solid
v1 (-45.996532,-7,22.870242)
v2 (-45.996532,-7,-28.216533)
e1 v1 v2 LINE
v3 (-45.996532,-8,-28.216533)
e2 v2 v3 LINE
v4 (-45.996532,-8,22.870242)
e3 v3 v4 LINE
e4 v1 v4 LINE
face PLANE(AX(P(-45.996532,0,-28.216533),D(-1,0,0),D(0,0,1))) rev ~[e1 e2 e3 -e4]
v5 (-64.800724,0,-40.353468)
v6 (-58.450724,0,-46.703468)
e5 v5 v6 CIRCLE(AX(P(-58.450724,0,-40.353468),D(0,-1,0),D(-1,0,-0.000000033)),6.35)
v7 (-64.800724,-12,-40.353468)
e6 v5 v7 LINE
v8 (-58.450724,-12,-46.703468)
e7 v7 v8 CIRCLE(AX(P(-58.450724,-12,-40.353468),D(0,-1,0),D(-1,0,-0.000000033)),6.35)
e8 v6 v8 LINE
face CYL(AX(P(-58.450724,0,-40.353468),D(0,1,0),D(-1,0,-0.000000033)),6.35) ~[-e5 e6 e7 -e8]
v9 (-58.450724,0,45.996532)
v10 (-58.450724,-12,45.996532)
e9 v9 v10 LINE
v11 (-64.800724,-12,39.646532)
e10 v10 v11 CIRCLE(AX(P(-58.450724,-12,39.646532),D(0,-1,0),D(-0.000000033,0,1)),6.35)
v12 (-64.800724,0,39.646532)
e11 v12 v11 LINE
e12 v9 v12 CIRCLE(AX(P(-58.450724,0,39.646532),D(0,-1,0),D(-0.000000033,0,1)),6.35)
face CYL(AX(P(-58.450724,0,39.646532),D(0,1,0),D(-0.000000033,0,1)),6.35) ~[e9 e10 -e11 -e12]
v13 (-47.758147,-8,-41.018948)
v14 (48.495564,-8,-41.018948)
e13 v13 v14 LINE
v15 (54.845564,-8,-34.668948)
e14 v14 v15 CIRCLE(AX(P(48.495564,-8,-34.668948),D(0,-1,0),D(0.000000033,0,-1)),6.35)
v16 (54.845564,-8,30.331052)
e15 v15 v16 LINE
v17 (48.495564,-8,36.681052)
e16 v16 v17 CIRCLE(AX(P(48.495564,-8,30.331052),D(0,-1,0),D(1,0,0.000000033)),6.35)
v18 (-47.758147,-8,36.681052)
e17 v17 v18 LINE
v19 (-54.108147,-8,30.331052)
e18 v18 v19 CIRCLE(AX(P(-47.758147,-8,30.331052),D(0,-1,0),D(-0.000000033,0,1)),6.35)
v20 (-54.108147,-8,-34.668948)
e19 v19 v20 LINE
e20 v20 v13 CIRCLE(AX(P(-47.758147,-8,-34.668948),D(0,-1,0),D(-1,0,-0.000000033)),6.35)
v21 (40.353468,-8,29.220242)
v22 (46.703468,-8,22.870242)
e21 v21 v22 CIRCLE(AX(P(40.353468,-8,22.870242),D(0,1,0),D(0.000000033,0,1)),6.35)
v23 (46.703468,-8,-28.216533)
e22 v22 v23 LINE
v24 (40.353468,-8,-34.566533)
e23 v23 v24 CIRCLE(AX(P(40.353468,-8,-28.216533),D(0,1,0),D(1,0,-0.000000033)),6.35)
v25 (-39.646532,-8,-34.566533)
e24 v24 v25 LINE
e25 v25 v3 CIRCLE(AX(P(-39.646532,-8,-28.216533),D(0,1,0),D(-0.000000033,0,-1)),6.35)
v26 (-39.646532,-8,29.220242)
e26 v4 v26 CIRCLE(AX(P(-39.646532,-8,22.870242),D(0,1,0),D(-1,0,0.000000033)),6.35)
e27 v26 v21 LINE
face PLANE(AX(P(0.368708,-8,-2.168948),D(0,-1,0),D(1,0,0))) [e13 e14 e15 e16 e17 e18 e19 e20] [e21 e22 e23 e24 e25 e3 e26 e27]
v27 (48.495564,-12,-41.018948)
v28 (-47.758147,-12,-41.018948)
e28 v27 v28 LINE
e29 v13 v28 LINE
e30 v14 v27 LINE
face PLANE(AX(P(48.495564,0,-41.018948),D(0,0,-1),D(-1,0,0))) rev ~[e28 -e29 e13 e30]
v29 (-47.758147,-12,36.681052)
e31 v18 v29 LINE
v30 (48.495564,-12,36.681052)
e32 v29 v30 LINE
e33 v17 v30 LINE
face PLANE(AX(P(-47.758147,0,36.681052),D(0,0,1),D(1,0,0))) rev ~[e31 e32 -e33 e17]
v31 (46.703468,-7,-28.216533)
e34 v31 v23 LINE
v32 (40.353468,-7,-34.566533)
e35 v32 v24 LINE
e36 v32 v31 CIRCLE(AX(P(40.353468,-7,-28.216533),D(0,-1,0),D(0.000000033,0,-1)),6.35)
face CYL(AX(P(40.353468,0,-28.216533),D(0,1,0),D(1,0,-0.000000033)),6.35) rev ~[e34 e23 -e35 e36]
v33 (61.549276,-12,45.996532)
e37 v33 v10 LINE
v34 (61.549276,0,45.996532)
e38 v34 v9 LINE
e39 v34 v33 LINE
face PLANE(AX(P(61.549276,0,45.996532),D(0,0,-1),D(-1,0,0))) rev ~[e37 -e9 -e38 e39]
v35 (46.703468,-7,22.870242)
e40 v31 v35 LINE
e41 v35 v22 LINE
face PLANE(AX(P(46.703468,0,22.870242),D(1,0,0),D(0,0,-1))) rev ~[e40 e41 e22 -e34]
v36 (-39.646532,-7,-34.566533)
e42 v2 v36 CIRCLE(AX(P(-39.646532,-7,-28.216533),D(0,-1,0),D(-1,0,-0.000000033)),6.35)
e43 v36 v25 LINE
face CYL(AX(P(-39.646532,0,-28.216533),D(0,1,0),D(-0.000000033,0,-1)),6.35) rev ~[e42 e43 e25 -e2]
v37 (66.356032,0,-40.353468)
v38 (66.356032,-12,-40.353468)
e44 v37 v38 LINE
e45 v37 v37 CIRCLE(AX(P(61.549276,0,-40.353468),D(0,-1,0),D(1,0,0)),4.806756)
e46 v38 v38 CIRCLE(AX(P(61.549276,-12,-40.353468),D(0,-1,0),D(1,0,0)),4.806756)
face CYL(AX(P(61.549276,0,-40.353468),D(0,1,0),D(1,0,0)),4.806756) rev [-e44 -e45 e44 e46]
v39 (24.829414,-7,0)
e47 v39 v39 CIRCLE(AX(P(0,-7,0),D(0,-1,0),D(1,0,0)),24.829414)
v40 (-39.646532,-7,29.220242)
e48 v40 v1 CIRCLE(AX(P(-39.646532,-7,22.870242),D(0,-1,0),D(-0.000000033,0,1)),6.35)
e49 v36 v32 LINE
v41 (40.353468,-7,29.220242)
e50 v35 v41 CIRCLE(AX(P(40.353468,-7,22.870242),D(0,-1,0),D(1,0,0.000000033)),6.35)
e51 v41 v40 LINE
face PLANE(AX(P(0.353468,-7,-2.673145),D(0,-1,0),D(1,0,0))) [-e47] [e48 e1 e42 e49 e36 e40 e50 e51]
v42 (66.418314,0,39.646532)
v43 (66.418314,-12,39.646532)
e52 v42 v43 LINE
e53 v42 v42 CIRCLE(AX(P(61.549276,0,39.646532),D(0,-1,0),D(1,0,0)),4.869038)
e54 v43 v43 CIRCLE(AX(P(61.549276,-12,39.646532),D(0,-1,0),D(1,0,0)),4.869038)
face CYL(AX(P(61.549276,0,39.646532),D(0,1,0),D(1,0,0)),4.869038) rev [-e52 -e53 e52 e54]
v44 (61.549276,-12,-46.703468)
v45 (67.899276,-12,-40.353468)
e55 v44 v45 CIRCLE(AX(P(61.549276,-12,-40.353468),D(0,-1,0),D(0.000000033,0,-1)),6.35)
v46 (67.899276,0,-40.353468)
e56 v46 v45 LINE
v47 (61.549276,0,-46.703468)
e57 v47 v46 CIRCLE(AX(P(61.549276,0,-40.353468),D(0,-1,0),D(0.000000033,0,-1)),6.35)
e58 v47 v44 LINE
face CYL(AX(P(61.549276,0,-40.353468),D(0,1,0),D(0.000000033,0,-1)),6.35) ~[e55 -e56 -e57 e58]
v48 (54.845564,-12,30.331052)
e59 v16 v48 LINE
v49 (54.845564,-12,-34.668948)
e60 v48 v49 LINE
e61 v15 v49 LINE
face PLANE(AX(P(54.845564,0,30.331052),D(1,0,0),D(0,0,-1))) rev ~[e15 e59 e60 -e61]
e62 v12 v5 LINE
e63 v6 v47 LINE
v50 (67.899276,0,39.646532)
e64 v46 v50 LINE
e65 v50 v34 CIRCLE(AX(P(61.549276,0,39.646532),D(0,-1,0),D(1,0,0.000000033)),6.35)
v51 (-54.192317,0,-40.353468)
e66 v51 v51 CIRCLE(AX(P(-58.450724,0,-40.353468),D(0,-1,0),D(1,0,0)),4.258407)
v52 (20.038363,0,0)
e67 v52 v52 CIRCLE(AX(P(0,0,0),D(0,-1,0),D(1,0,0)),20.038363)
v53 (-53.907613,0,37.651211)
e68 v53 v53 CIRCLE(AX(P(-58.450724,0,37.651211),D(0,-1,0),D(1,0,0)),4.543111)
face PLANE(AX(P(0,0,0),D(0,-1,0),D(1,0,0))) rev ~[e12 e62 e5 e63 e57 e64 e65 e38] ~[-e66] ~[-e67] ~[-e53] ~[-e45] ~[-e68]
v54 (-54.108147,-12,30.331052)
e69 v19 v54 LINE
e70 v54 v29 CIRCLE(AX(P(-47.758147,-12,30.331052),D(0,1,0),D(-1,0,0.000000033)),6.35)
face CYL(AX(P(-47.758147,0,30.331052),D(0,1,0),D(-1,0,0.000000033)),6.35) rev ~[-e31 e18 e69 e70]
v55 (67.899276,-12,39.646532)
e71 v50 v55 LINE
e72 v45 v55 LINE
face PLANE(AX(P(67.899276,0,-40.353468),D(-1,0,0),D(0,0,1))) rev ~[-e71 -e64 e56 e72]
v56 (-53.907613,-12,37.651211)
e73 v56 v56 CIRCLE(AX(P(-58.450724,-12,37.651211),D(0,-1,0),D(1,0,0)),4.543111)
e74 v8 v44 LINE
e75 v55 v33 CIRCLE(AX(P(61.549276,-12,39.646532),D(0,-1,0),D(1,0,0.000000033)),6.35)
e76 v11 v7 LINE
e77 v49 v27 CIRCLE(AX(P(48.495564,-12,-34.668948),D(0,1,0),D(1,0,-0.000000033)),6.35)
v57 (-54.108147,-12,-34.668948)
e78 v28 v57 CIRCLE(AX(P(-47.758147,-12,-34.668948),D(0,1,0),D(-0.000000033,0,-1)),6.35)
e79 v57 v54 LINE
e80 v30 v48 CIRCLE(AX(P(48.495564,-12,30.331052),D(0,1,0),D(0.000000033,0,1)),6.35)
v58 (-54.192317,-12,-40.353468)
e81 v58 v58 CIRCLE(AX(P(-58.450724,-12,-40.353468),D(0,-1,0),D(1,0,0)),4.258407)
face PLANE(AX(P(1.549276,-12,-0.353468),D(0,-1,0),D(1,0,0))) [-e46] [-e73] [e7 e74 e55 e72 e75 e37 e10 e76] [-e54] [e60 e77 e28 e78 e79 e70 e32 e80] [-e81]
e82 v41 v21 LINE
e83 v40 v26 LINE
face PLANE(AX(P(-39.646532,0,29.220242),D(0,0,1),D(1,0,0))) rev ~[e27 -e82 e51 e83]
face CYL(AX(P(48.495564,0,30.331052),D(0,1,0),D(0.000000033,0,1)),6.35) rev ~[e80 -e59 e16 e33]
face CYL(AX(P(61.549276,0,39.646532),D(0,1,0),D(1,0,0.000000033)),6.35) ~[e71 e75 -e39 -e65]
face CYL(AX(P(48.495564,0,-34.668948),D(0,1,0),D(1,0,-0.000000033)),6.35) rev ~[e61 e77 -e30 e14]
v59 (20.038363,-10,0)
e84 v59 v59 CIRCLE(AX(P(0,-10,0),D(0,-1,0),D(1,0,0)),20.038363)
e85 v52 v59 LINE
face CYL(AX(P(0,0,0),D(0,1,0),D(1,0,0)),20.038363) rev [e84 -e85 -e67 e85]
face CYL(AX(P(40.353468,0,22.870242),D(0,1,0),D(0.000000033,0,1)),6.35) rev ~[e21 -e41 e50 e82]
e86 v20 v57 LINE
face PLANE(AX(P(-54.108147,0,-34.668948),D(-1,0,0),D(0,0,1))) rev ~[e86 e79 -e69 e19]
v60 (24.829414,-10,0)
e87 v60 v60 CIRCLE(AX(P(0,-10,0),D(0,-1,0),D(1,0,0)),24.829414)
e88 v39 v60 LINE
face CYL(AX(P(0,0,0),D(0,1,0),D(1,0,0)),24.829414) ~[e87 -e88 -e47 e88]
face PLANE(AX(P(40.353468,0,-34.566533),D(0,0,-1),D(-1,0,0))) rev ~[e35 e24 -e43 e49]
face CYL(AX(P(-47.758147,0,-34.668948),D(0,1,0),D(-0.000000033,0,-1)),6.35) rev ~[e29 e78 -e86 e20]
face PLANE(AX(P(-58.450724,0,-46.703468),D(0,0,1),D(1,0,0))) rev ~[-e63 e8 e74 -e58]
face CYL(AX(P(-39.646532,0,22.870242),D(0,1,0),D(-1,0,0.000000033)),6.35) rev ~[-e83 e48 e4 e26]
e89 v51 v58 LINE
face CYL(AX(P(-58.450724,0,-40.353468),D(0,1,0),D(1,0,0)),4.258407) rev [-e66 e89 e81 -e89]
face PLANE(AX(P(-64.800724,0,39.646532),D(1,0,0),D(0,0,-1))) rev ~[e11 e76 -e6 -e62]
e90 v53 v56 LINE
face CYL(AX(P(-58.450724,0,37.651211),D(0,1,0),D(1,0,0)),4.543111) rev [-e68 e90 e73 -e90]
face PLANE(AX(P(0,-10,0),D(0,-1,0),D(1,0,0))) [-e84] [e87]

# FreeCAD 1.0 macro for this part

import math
import FreeCAD as App
import Part
import Sketcher

V = App.Vector

doc = App.newDocument("Part")
body = doc.addObject("PartDesign::Body", "Body")

# Sketch on XZ plane
sketch1 = body.newObject("Sketcher::SketchObject", "Sketch")
sketch1.AttachmentSupport = (doc.getObject("XZ_Plane"), [""])
sketch1.MapMode = "FlatFace"
sketch1.addGeometry([
    Part.LineSegment(V(61.5, 46, 0), V(-58.5, 46, 0)),  # 0
    Part.ArcOfCircle(Part.Circle(V(-58.5, 39.6, 0), V(0, 0, 1), 6.4), math.radians(90), math.radians(180)),  # 1
    Part.LineSegment(V(-64.8, 39.6, 0), V(-64.8, -40.4, 0)),  # 2
    Part.ArcOfCircle(Part.Circle(V(-58.5, -40.4, 0), V(0, 0, 1), 6.4), math.radians(-180), math.radians(-90)),  # 3
    Part.LineSegment(V(-58.5, -46.7, 0), V(61.5, -46.7, 0)),  # 4
    Part.ArcOfCircle(Part.Circle(V(61.5, -40.4, 0), V(0, 0, 1), 6.4), math.radians(-90), math.radians(0)),  # 5
    Part.LineSegment(V(67.9, -40.4, 0), V(67.9, 39.6, 0)),  # 6
    Part.ArcOfCircle(Part.Circle(V(61.5, 39.6, 0), V(0, 0, 1), 6.4), math.radians(0), math.radians(90)),  # 7
    Part.Circle(V(-58.5, -40.4, 0), V(0, 0, 1), 4.3),  # 8
    Part.LineSegment(V(-54.1, -34.7, 0), V(-54.1, 30.3, 0)),  # 9
    Part.ArcOfCircle(Part.Circle(V(-47.8, 30.3, 0), V(0, 0, 1), 6.4), math.radians(90), math.radians(180)),  # 10
    Part.LineSegment(V(-47.8, 36.7, 0), V(48.5, 36.7, 0)),  # 11
    Part.ArcOfCircle(Part.Circle(V(48.5, 30.3, 0), V(0, 0, 1), 6.4), math.radians(0), math.radians(90)),  # 12
    Part.LineSegment(V(54.8, 30.3, 0), V(54.8, -34.7, 0)),  # 13
    Part.ArcOfCircle(Part.Circle(V(48.5, -34.7, 0), V(0, 0, 1), 6.4), math.radians(-90), math.radians(0)),  # 14
    Part.LineSegment(V(48.5, -41, 0), V(-47.8, -41, 0)),  # 15
    Part.ArcOfCircle(Part.Circle(V(-47.8, -34.7, 0), V(0, 0, 1), 6.4), math.radians(-180), math.radians(-90)),  # 16
    Part.Circle(V(61.5, -40.4, 0), V(0, 0, 1), 4.8),  # 17
    Part.Circle(V(-58.5, 37.7, 0), V(0, 0, 1), 4.5),  # 18
    Part.Circle(V(61.5, 39.6, 0), V(0, 0, 1), 4.9),  # 19
], False)
sketch1.addConstraint([
    Sketcher.Constraint("Tangent", 0, 2, 1, 1),
    Sketcher.Constraint("Tangent", 1, 2, 2, 1),
    Sketcher.Constraint("Tangent", 2, 2, 3, 1),
    Sketcher.Constraint("Tangent", 3, 2, 4, 1),
    Sketcher.Constraint("Tangent", 4, 2, 5, 1),
    Sketcher.Constraint("Tangent", 5, 2, 6, 1),
    Sketcher.Constraint("Tangent", 6, 2, 7, 1),
    Sketcher.Constraint("Tangent", 7, 2, 0, 1),
    Sketcher.Constraint("Tangent", 9, 2, 10, 2),
    Sketcher.Constraint("Tangent", 10, 1, 11, 1),
    Sketcher.Constraint("Tangent", 11, 2, 12, 2),
    Sketcher.Constraint("Tangent", 12, 1, 13, 1),
    Sketcher.Constraint("Tangent", 13, 2, 14, 2),
    Sketcher.Constraint("Tangent", 14, 1, 15, 1),
    Sketcher.Constraint("Tangent", 15, 2, 16, 2),
    Sketcher.Constraint("Tangent", 16, 1, 9, 1),
    Sketcher.Constraint("Horizontal", 0),
    Sketcher.Constraint("Vertical", 2),
    Sketcher.Constraint("Horizontal", 4),
    Sketcher.Constraint("Vertical", 6),
    Sketcher.Constraint("Vertical", 9),
    Sketcher.Constraint("Horizontal", 11),
    Sketcher.Constraint("Vertical", 13),
    Sketcher.Constraint("Horizontal", 15),
    Sketcher.Constraint("Coincident", 8, 3, 3, 3),
    Sketcher.Constraint("Coincident", 17, 3, 5, 3),
    Sketcher.Constraint("Coincident", 19, 3, 7, 3),
    Sketcher.Constraint("Equal", 1, 3),
    Sketcher.Constraint("Equal", 3, 5),
    Sketcher.Constraint("Equal", 5, 7),
    Sketcher.Constraint("Equal", 7, 10),
    Sketcher.Constraint("Equal", 10, 12),
    Sketcher.Constraint("Equal", 12, 14),
    Sketcher.Constraint("Equal", 14, 16),
    Sketcher.Constraint("Vertical", 8, 3, 18, 3),
    Sketcher.Constraint("DistanceX", 0, 2, 0, 1, 120.0),
    Sketcher.Constraint("DistanceY", 2, 2, 2, 1, 80.0),
    Sketcher.Constraint("DistanceY", 9, 1, 9, 2, 65.0),
    Sketcher.Constraint("Radius", 1, 6.35),
    Sketcher.Constraint("Diameter", 18, 9.086222),
    Sketcher.Constraint("Diameter", 8, 8.516814),
    Sketcher.Constraint("Diameter", 17, 9.613512),
    Sketcher.Constraint("Diameter", 19, 9.738076),
    Sketcher.Constraint("DistanceX", 11, 1, 11, 2, 96.253711),
    Sketcher.Constraint("DistanceY", -1, 1, 1, 3, 39.646532),
    Sketcher.Constraint("DistanceY", -1, 1, 10, 3, 30.331052),
    Sketcher.Constraint("DistanceY", -1, 1, 18, 3, 37.651211),
    Sketcher.Constraint("DistanceX", 12, 3, 7, 3, 13.053712),
    Sketcher.Constraint("DistanceX", 1, 3, -1, 1, 58.450724),
])
pad1 = body.newObject("PartDesign::Pad", "Pad")
pad1.Profile = sketch1
pad1.Length = 12

# Sketch on XZ plane
sketch2 = body.newObject("Sketcher::SketchObject", "Sketch001")
sketch2.AttachmentSupport = (doc.getObject("XZ_Plane"), [""])
sketch2.MapMode = "FlatFace"
sketch2.addGeometry([
    Part.LineSegment(V(48, 37, 0), V(-48, 37, 0)),  # 0
    Part.ArcOfCircle(Part.Circle(V(-48, 30, 0), V(0, 0, 1), 6), math.radians(90), math.radians(180)),  # 1
    Part.LineSegment(V(-54, 30, 0), V(-54, -35, 0)),  # 2
    Part.ArcOfCircle(Part.Circle(V(-48, -35, 0), V(0, 0, 1), 6), math.radians(-180), math.radians(-90)),  # 3
    Part.LineSegment(V(-48, -41, 0), V(48, -41, 0)),  # 4
    Part.ArcOfCircle(Part.Circle(V(48, -35, 0), V(0, 0, 1), 6), math.radians(-90), math.radians(0)),  # 5
    Part.LineSegment(V(55, -35, 0), V(55, 30, 0)),  # 6
    Part.ArcOfCircle(Part.Circle(V(48, 30, 0), V(0, 0, 1), 6), math.radians(0), math.radians(90)),  # 7
    Part.LineSegment(V(-46, -28, 0), V(-46, 23, 0)),  # 8
    Part.ArcOfCircle(Part.Circle(V(-40, 23, 0), V(0, 0, 1), 6), math.radians(90), math.radians(180)),  # 9
    Part.LineSegment(V(-40, 29, 0), V(40, 29, 0)),  # 10
    Part.ArcOfCircle(Part.Circle(V(40, 23, 0), V(0, 0, 1), 6), math.radians(0), math.radians(90)),  # 11
    Part.LineSegment(V(47, 23, 0), V(47, -28, 0)),  # 12
    Part.ArcOfCircle(Part.Circle(V(40, -28, 0), V(0, 0, 1), 6), math.radians(-90), math.radians(0)),  # 13
    Part.LineSegment(V(40, -35, 0), V(-40, -35, 0)),  # 14
    Part.ArcOfCircle(Part.Circle(V(-40, -28, 0), V(0, 0, 1), 6), math.radians(-180), math.radians(-90)),  # 15
], False)
sketch2.addConstraint([
    Sketcher.Constraint("Tangent", 0, 2, 1, 1),
    Sketcher.Constraint("Tangent", 1, 2, 2, 1),
    Sketcher.Constraint("Tangent", 2, 2, 3, 1),
    Sketcher.Constraint("Tangent", 3, 2, 4, 1),
    Sketcher.Constraint("Tangent", 4, 2, 5, 1),
    Sketcher.Constraint("Tangent", 5, 2, 6, 1),
    Sketcher.Constraint("Tangent", 6, 2, 7, 1),
    Sketcher.Constraint("Tangent", 7, 2, 0, 1),
    Sketcher.Constraint("Tangent", 8, 2, 9, 2),
    Sketcher.Constraint("Tangent", 9, 1, 10, 1),
    Sketcher.Constraint("Tangent", 10, 2, 11, 2),
    Sketcher.Constraint("Tangent", 11, 1, 12, 1),
    Sketcher.Constraint("Tangent", 12, 2, 13, 2),
    Sketcher.Constraint("Tangent", 13, 1, 14, 1),
    Sketcher.Constraint("Tangent", 14, 2, 15, 2),
    Sketcher.Constraint("Tangent", 15, 1, 8, 1),
    Sketcher.Constraint("Horizontal", 0),
    Sketcher.Constraint("Vertical", 2),
    Sketcher.Constraint("Horizontal", 4),
    Sketcher.Constraint("Vertical", 6),
    Sketcher.Constraint("Vertical", 8),
    Sketcher.Constraint("Horizontal", 10),
    Sketcher.Constraint("Vertical", 12),
    Sketcher.Constraint("Horizontal", 14),
    Sketcher.Constraint("Equal", 1, 3),
    Sketcher.Constraint("Equal", 3, 5),
    Sketcher.Constraint("Equal", 5, 7),
    Sketcher.Constraint("Equal", 7, 9),
    Sketcher.Constraint("Equal", 9, 11),
    Sketcher.Constraint("Equal", 11, 13),
    Sketcher.Constraint("Equal", 13, 15),
    Sketcher.Constraint("DistanceX", 10, 1, 10, 2, 80.0),
    Sketcher.Constraint("DistanceY", 2, 2, 2, 1, 65.0),
    Sketcher.Constraint("Radius", 1, 6.35),
    Sketcher.Constraint("DistanceX", 0, 2, 0, 1, 96.253711),
    Sketcher.Constraint("DistanceY", 8, 1, 8, 2, 51.086775),
    Sketcher.Constraint("DistanceY", -1, 1, 1, 3, 30.331052),
    Sketcher.Constraint("DistanceX", 9, 3, -1, 1, 39.646532),
    Sketcher.Constraint("DistanceY", -1, 1, 9, 3, 22.870242),
    Sketcher.Constraint("DistanceX", 1, 3, -1, 1, 47.758147),
])
pad2 = body.newObject("PartDesign::Pad", "Pad001")
pad2.Profile = sketch2
pad2.Length = 8

# Sketch on XZ plane
sketch3 = body.newObject("Sketcher::SketchObject", "Sketch002")
sketch3.AttachmentSupport = (doc.getObject("XZ_Plane"), [""])
sketch3.MapMode = "FlatFace"
sketch3.addGeometry([
    Part.LineSegment(V(40, 29, 0), V(-40, 29, 0)),  # 0
    Part.ArcOfCircle(Part.Circle(V(-40, 23, 0), V(0, 0, 1), 6), math.radians(90), math.radians(180)),  # 1
    Part.LineSegment(V(-46, 23, 0), V(-46, -28, 0)),  # 2
    Part.ArcOfCircle(Part.Circle(V(-40, -28, 0), V(0, 0, 1), 6), math.radians(-180), math.radians(-90)),  # 3
    Part.LineSegment(V(-40, -35, 0), V(40, -35, 0)),  # 4
    Part.ArcOfCircle(Part.Circle(V(40, -28, 0), V(0, 0, 1), 6), math.radians(-90), math.radians(0)),  # 5
    Part.LineSegment(V(47, -28, 0), V(47, 23, 0)),  # 6
    Part.ArcOfCircle(Part.Circle(V(40, 23, 0), V(0, 0, 1), 6), math.radians(0), math.radians(90)),  # 7
    Part.Circle(V(0, 0, 0), V(0, 0, 1), 25),  # 8
], False)
sketch3.addConstraint([
    Sketcher.Constraint("Tangent", 0, 2, 1, 1),
    Sketcher.Constraint("Tangent", 1, 2, 2, 1),
    Sketcher.Constraint("Tangent", 2, 2, 3, 1),
    Sketcher.Constraint("Tangent", 3, 2, 4, 1),
    Sketcher.Constraint("Tangent", 4, 2, 5, 1),
    Sketcher.Constraint("Tangent", 5, 2, 6, 1),
    Sketcher.Constraint("Tangent", 6, 2, 7, 1),
    Sketcher.Constraint("Tangent", 7, 2, 0, 1),
    Sketcher.Constraint("Horizontal", 0),
    Sketcher.Constraint("Vertical", 2),
    Sketcher.Constraint("Horizontal", 4),
    Sketcher.Constraint("Vertical", 6),
    Sketcher.Constraint("Coincident", 8, 3, -1, 1),
    Sketcher.Constraint("Equal", 1, 3),
    Sketcher.Constraint("Equal", 3, 5),
    Sketcher.Constraint("Equal", 5, 7),
    Sketcher.Constraint("DistanceX", 0, 2, 0, 1, 80.0),
    Sketcher.Constraint("Radius", 1, 6.35),
    Sketcher.Constraint("Diameter", 8, 49.658828),
    Sketcher.Constraint("DistanceY", 2, 2, 2, 1, 51.086775),
    Sketcher.Constraint("DistanceX", 1, 3, -1, 1, 39.646532),
    Sketcher.Constraint("DistanceY", -1, 1, 1, 3, 22.870242),
])
pad3 = body.newObject("PartDesign::Pad", "Pad002")
pad3.Profile = sketch3
pad3.Length = 7

# Sketch on XZ plane
sketch4 = body.newObject("Sketcher::SketchObject", "Sketch003")
sketch4.AttachmentSupport = (doc.getObject("XZ_Plane"), [""])
sketch4.MapMode = "FlatFace"
sketch4.addGeometry([
    Part.Circle(V(0, 0, 0), V(0, 0, 1), 25),
    Part.Circle(V(0, 0, 0), V(0, 0, 1), 20),
], False)
sketch4.addConstraint([
    Sketcher.Constraint("Coincident", 0, 3, -1, 1),
    Sketcher.Constraint("Coincident", 1, 3, -1, 1),
    Sketcher.Constraint("Diameter", 0, 49.658828),
    Sketcher.Constraint("Diameter", 1, 40.076726),
])
pad4 = body.newObject("PartDesign::Pad", "Pad003")
pad4.Profile = sketch4
pad4.Length = 10

doc.recompute()
